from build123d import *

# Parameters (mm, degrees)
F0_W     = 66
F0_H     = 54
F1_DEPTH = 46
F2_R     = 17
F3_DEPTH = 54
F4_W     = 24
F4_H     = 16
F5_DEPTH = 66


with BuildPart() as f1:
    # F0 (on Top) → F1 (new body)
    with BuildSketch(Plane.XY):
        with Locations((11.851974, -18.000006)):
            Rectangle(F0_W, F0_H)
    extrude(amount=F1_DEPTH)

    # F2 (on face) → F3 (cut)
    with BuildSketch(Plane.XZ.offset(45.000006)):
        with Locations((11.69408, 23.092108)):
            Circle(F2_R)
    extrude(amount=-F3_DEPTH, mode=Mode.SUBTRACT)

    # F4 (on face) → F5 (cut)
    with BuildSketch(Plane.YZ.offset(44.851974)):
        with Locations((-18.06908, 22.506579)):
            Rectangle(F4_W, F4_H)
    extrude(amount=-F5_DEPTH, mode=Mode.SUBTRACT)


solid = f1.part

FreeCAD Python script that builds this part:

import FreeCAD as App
import Part
import Sketcher
from FreeCAD import Vector
Q = App.Units.Quantity


def add_polygon(sketch, points):
    """Adds a closed chain of lines whose ends are joined by coincident constraints."""
    first, n = sketch.GeometryCount, len(points)
    for a, b in zip(points, points[1:] + points[:1]):
        sketch.addGeometry(Part.LineSegment(App.Vector(*a, 0), App.Vector(*b, 0)), False)
    for i in range(n):
        sketch.addConstraint(Sketcher.Constraint("Coincident", first + i, 2, first + (i + 1) % n, 1))

doc = App.newDocument("Part")
body = doc.addObject("PartDesign::Body", "Body")

sketch1 = body.newObject("Sketcher::SketchObject", "Sketch")
sketch1.AttachmentSupport = (doc.getObject("XY_Plane"), [""])
sketch1.MapMode = "FlatFace"
add_polygon(sketch1, [(-21, 9), (-21, -45), (45, -45), (45, 9)])
sketch1.addConstraint([
    Sketcher.Constraint("Vertical", 0),
    Sketcher.Constraint("Horizontal", 1),
    Sketcher.Constraint("Vertical", 2),
    Sketcher.Constraint("Horizontal", 3),
    Sketcher.Constraint("DistanceX", 1, 1, 1, 2, Q("66 mm")),
    Sketcher.Constraint("DistanceY", 0, 2, 0, 1, Q("54 mm")),
    Sketcher.Constraint("DistanceX", 0, 2, -1, 1, Q("21.148026 mm")),
    Sketcher.Constraint("DistanceY", 0, 2, -1, 1, Q("45.000006 mm")),
])
pad1 = body.newObject("PartDesign::Pad", "Pad")
pad1.Profile = sketch1
pad1.Length = 46

sketch2 = body.newObject("Sketcher::SketchObject", "Sketch001")
sketch2.AttachmentSupport = (doc.getObject("XZ_Plane"), [""])
sketch2.MapMode = "FlatFace"
sketch2.AttachmentOffset = App.Placement(Vector(0, 0, 45.000006), App.Rotation())
sketch2.addGeometry(Part.Circle(Vector(12, 23, 0), Vector(0, 0, 1), 17), False)
sketch2.addConstraint([
    Sketcher.Constraint("Diameter", 0, Q("34 mm")),
    Sketcher.Constraint("DistanceX", -1, 1, 0, 3, Q("11.69408 mm")),
    Sketcher.Constraint("DistanceY", -1, 1, 0, 3, Q("23.092108 mm")),
])
pocket1 = body.newObject("PartDesign::Pocket", "Pocket")
pocket1.Profile = sketch2
pocket1.Length = 54

sketch3 = body.newObject("Sketcher::SketchObject", "Sketch002")
sketch3.AttachmentSupport = (doc.getObject("YZ_Plane"), [""])
sketch3.MapMode = "FlatFace"
sketch3.AttachmentOffset = App.Placement(Vector(0, 0, 44.851974), App.Rotation())
add_polygon(sketch3, [(-30, 31), (-30, 15), (-6, 15), (-6, 31)])
sketch3.addConstraint([
    Sketcher.Constraint("Vertical", 0),
    Sketcher.Constraint("Horizontal", 1),
    Sketcher.Constraint("Vertical", 2),
    Sketcher.Constraint("Horizontal", 3),
    Sketcher.Constraint("DistanceX", 1, 1, 1, 2, Q("24 mm")),
    Sketcher.Constraint("DistanceY", 0, 2, 0, 1, Q("16 mm")),
    Sketcher.Constraint("DistanceX", 0, 2, -1, 1, Q("30.06908 mm")),
    Sketcher.Constraint("DistanceY", -1, 1, 0, 2, Q("14.506579 mm")),
])
pocket2 = body.newObject("PartDesign::Pocket", "Pocket001")
pocket2.Profile = sketch3
pocket2.Length = 66

doc.recompute()
